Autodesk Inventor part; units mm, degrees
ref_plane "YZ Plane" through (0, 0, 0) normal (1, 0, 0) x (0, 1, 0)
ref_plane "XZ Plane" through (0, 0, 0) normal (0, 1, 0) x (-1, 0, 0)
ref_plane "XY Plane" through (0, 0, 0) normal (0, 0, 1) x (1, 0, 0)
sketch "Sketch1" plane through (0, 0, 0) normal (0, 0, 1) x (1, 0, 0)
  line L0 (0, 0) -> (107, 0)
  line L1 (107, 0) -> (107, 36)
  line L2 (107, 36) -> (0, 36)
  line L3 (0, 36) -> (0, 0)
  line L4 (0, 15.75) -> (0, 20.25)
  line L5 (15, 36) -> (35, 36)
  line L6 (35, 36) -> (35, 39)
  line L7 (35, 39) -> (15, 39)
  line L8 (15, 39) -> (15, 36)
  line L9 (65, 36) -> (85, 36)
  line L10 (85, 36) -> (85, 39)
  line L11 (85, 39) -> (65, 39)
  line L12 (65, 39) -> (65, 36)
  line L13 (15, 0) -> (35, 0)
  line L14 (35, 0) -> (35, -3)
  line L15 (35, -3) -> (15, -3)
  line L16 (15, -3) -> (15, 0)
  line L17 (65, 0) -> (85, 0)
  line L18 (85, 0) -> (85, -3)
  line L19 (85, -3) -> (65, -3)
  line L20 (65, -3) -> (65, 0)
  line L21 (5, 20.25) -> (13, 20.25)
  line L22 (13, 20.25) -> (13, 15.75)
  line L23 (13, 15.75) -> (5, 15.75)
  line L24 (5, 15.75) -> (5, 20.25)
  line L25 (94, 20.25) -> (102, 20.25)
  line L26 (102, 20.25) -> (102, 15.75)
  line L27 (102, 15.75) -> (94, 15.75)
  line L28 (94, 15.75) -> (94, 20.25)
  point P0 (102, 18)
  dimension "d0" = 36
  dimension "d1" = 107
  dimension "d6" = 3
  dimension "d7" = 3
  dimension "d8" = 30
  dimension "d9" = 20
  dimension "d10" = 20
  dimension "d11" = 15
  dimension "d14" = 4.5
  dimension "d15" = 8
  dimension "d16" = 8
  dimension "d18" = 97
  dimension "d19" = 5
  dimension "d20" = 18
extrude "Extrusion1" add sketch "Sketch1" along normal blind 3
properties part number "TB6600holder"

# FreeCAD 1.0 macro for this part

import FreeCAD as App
import Part
import Sketcher
Q = App.Units.Quantity


def add_polygon(sketch, points):
    """Adds a closed chain of lines whose ends are joined by coincident constraints."""
    first, n = sketch.GeometryCount, len(points)
    for a, b in zip(points, points[1:] + points[:1]):
        sketch.addGeometry(Part.LineSegment(App.Vector(*a, 0), App.Vector(*b, 0)), False)
    for i in range(n):
        sketch.addConstraint(Sketcher.Constraint("Coincident", first + i, 2, first + (i + 1) % n, 1))

doc = App.newDocument("Part")
body = doc.addObject("PartDesign::Body", "Body")

# Sketch on XY plane
sketch1 = doc.addObject("Sketcher::SketchObject", "Sketch")
body.addObject(sketch1)
sketch1.AttachmentSupport = (doc.XY_Plane, [""])
sketch1.MapMode = "FlatFace"
add_polygon(sketch1, [(0, 0), (15, 0), (15, -3), (35, -3), (35, 0), (65, 0), (65, -3), (85, -3), (85, 0), (107, 0), (107, 36), (85, 36), (85, 39), (65, 39), (65, 36), (35, 36), (35, 39), (15, 39), (15, 36), (0, 36)])  # lines 0-19
add_polygon(sketch1, [(5, 15.75), (5, 20.25), (13, 20.25), (13, 15.75)])  # lines 20-23
add_polygon(sketch1, [(94, 15.75), (94, 20.25), (102, 20.25), (102, 15.75)])  # lines 24-27
sketch1.addConstraint(Sketcher.Constraint("Horizontal", 0))
sketch1.addConstraint(Sketcher.Constraint("Vertical", 1))
sketch1.addConstraint(Sketcher.Constraint("Horizontal", 2))
sketch1.addConstraint(Sketcher.Constraint("Vertical", 3))
sketch1.addConstraint(Sketcher.Constraint("Horizontal", 4))
sketch1.addConstraint(Sketcher.Constraint("Vertical", 5))
sketch1.addConstraint(Sketcher.Constraint("Horizontal", 6))
sketch1.addConstraint(Sketcher.Constraint("Vertical", 7))
sketch1.addConstraint(Sketcher.Constraint("Horizontal", 8))
sketch1.addConstraint(Sketcher.Constraint("Vertical", 9))
sketch1.addConstraint(Sketcher.Constraint("Horizontal", 10))
sketch1.addConstraint(Sketcher.Constraint("Vertical", 11))
sketch1.addConstraint(Sketcher.Constraint("Horizontal", 12))
sketch1.addConstraint(Sketcher.Constraint("Vertical", 13))
sketch1.addConstraint(Sketcher.Constraint("Horizontal", 14))
sketch1.addConstraint(Sketcher.Constraint("Vertical", 15))
sketch1.addConstraint(Sketcher.Constraint("Horizontal", 16))
sketch1.addConstraint(Sketcher.Constraint("Vertical", 17))
sketch1.addConstraint(Sketcher.Constraint("Horizontal", 18))
sketch1.addConstraint(Sketcher.Constraint("Vertical", 19))
sketch1.addConstraint(Sketcher.Constraint("Vertical", 20))
sketch1.addConstraint(Sketcher.Constraint("Horizontal", 21))
sketch1.addConstraint(Sketcher.Constraint("Vertical", 22))
sketch1.addConstraint(Sketcher.Constraint("Horizontal", 23))
sketch1.addConstraint(Sketcher.Constraint("Vertical", 24))
sketch1.addConstraint(Sketcher.Constraint("Horizontal", 25))
sketch1.addConstraint(Sketcher.Constraint("Vertical", 26))
sketch1.addConstraint(Sketcher.Constraint("Horizontal", 27))
sketch1.addConstraint(Sketcher.Constraint("Coincident", 19, 2, -1, 1))
sketch1.addConstraint(Sketcher.Constraint("PointOnObject", 3, 2, -1))
sketch1.addConstraint(Sketcher.Constraint("PointOnObject", 7, 2, -1))
sketch1.addConstraint(Sketcher.Constraint("Horizontal", 2, 2, 5, 2))
sketch1.addConstraint(Sketcher.Constraint("Horizontal", 10, 2, 13, 2))
sketch1.addConstraint(Sketcher.Constraint("Horizontal", 12, 2, 15, 2))
sketch1.addConstraint(Sketcher.Constraint("Horizontal", 14, 2, 17, 2))
sketch1.addConstraint(Sketcher.Constraint("Horizontal", 21, 2, 24, 2))
sketch1.addConstraint(Sketcher.Constraint("Horizontal", 23, 2, 26, 2))
sketch1.addConstraint(Sketcher.Constraint("Vertical", 7, 2, 10, 2))
sketch1.addConstraint(Sketcher.Constraint("Vertical", 5, 2, 12, 2))
sketch1.addConstraint(Sketcher.Constraint("Vertical", 3, 2, 14, 2))
sketch1.addConstraint(Sketcher.Constraint("Vertical", 1, 2, 16, 2))
sketch1.addConstraint(Sketcher.Constraint("Equal", 2, 6))
sketch1.addConstraint(Sketcher.Constraint("Equal", 23, 25))
sketch1.addConstraint(Sketcher.Constraint("Equal", 7, 11))
sketch1.addConstraint(Sketcher.Constraint("DistanceX", 0, 1, 0, 2, Q("15 mm")))
sketch1.addConstraint(Sketcher.Constraint("DistanceX", 2, 1, 2, 2, Q("20 mm")))
sketch1.addConstraint(Sketcher.Constraint("DistanceX", 4, 1, 4, 2, Q("30 mm")))
sketch1.addConstraint(Sketcher.Constraint("DistanceX", 21, 1, 21, 2, Q("8 mm")))
sketch1.addConstraint(Sketcher.Constraint("DistanceY", 1, 2, 1, 1, Q("3 mm")))
sketch1.addConstraint(Sketcher.Constraint("DistanceY", 9, 1, 9, 2, Q("36 mm")))
sketch1.addConstraint(Sketcher.Constraint("DistanceY", 20, 1, 20, 2, Q("4.5 mm")))
sketch1.addConstraint(Sketcher.Constraint("DistanceX", -1, 1, 8, 2, Q("107 mm")))
sketch1.addConstraint(Sketcher.Constraint("DistanceX", -1, 1, 20, 2, Q("5 mm")))
sketch1.addConstraint(Sketcher.Constraint("DistanceX", 25, 2, 9, 2, Q("5 mm")))
sketch1.addConstraint(Sketcher.Constraint("DistanceY", -1, 1, 20, 2, Q("20.25 mm")))
pad1 = doc.addObject("PartDesign::Pad", "Pad")
body.addObject(pad1)
pad1.Profile = sketch1
pad1.Length = 3

doc.recompute()
